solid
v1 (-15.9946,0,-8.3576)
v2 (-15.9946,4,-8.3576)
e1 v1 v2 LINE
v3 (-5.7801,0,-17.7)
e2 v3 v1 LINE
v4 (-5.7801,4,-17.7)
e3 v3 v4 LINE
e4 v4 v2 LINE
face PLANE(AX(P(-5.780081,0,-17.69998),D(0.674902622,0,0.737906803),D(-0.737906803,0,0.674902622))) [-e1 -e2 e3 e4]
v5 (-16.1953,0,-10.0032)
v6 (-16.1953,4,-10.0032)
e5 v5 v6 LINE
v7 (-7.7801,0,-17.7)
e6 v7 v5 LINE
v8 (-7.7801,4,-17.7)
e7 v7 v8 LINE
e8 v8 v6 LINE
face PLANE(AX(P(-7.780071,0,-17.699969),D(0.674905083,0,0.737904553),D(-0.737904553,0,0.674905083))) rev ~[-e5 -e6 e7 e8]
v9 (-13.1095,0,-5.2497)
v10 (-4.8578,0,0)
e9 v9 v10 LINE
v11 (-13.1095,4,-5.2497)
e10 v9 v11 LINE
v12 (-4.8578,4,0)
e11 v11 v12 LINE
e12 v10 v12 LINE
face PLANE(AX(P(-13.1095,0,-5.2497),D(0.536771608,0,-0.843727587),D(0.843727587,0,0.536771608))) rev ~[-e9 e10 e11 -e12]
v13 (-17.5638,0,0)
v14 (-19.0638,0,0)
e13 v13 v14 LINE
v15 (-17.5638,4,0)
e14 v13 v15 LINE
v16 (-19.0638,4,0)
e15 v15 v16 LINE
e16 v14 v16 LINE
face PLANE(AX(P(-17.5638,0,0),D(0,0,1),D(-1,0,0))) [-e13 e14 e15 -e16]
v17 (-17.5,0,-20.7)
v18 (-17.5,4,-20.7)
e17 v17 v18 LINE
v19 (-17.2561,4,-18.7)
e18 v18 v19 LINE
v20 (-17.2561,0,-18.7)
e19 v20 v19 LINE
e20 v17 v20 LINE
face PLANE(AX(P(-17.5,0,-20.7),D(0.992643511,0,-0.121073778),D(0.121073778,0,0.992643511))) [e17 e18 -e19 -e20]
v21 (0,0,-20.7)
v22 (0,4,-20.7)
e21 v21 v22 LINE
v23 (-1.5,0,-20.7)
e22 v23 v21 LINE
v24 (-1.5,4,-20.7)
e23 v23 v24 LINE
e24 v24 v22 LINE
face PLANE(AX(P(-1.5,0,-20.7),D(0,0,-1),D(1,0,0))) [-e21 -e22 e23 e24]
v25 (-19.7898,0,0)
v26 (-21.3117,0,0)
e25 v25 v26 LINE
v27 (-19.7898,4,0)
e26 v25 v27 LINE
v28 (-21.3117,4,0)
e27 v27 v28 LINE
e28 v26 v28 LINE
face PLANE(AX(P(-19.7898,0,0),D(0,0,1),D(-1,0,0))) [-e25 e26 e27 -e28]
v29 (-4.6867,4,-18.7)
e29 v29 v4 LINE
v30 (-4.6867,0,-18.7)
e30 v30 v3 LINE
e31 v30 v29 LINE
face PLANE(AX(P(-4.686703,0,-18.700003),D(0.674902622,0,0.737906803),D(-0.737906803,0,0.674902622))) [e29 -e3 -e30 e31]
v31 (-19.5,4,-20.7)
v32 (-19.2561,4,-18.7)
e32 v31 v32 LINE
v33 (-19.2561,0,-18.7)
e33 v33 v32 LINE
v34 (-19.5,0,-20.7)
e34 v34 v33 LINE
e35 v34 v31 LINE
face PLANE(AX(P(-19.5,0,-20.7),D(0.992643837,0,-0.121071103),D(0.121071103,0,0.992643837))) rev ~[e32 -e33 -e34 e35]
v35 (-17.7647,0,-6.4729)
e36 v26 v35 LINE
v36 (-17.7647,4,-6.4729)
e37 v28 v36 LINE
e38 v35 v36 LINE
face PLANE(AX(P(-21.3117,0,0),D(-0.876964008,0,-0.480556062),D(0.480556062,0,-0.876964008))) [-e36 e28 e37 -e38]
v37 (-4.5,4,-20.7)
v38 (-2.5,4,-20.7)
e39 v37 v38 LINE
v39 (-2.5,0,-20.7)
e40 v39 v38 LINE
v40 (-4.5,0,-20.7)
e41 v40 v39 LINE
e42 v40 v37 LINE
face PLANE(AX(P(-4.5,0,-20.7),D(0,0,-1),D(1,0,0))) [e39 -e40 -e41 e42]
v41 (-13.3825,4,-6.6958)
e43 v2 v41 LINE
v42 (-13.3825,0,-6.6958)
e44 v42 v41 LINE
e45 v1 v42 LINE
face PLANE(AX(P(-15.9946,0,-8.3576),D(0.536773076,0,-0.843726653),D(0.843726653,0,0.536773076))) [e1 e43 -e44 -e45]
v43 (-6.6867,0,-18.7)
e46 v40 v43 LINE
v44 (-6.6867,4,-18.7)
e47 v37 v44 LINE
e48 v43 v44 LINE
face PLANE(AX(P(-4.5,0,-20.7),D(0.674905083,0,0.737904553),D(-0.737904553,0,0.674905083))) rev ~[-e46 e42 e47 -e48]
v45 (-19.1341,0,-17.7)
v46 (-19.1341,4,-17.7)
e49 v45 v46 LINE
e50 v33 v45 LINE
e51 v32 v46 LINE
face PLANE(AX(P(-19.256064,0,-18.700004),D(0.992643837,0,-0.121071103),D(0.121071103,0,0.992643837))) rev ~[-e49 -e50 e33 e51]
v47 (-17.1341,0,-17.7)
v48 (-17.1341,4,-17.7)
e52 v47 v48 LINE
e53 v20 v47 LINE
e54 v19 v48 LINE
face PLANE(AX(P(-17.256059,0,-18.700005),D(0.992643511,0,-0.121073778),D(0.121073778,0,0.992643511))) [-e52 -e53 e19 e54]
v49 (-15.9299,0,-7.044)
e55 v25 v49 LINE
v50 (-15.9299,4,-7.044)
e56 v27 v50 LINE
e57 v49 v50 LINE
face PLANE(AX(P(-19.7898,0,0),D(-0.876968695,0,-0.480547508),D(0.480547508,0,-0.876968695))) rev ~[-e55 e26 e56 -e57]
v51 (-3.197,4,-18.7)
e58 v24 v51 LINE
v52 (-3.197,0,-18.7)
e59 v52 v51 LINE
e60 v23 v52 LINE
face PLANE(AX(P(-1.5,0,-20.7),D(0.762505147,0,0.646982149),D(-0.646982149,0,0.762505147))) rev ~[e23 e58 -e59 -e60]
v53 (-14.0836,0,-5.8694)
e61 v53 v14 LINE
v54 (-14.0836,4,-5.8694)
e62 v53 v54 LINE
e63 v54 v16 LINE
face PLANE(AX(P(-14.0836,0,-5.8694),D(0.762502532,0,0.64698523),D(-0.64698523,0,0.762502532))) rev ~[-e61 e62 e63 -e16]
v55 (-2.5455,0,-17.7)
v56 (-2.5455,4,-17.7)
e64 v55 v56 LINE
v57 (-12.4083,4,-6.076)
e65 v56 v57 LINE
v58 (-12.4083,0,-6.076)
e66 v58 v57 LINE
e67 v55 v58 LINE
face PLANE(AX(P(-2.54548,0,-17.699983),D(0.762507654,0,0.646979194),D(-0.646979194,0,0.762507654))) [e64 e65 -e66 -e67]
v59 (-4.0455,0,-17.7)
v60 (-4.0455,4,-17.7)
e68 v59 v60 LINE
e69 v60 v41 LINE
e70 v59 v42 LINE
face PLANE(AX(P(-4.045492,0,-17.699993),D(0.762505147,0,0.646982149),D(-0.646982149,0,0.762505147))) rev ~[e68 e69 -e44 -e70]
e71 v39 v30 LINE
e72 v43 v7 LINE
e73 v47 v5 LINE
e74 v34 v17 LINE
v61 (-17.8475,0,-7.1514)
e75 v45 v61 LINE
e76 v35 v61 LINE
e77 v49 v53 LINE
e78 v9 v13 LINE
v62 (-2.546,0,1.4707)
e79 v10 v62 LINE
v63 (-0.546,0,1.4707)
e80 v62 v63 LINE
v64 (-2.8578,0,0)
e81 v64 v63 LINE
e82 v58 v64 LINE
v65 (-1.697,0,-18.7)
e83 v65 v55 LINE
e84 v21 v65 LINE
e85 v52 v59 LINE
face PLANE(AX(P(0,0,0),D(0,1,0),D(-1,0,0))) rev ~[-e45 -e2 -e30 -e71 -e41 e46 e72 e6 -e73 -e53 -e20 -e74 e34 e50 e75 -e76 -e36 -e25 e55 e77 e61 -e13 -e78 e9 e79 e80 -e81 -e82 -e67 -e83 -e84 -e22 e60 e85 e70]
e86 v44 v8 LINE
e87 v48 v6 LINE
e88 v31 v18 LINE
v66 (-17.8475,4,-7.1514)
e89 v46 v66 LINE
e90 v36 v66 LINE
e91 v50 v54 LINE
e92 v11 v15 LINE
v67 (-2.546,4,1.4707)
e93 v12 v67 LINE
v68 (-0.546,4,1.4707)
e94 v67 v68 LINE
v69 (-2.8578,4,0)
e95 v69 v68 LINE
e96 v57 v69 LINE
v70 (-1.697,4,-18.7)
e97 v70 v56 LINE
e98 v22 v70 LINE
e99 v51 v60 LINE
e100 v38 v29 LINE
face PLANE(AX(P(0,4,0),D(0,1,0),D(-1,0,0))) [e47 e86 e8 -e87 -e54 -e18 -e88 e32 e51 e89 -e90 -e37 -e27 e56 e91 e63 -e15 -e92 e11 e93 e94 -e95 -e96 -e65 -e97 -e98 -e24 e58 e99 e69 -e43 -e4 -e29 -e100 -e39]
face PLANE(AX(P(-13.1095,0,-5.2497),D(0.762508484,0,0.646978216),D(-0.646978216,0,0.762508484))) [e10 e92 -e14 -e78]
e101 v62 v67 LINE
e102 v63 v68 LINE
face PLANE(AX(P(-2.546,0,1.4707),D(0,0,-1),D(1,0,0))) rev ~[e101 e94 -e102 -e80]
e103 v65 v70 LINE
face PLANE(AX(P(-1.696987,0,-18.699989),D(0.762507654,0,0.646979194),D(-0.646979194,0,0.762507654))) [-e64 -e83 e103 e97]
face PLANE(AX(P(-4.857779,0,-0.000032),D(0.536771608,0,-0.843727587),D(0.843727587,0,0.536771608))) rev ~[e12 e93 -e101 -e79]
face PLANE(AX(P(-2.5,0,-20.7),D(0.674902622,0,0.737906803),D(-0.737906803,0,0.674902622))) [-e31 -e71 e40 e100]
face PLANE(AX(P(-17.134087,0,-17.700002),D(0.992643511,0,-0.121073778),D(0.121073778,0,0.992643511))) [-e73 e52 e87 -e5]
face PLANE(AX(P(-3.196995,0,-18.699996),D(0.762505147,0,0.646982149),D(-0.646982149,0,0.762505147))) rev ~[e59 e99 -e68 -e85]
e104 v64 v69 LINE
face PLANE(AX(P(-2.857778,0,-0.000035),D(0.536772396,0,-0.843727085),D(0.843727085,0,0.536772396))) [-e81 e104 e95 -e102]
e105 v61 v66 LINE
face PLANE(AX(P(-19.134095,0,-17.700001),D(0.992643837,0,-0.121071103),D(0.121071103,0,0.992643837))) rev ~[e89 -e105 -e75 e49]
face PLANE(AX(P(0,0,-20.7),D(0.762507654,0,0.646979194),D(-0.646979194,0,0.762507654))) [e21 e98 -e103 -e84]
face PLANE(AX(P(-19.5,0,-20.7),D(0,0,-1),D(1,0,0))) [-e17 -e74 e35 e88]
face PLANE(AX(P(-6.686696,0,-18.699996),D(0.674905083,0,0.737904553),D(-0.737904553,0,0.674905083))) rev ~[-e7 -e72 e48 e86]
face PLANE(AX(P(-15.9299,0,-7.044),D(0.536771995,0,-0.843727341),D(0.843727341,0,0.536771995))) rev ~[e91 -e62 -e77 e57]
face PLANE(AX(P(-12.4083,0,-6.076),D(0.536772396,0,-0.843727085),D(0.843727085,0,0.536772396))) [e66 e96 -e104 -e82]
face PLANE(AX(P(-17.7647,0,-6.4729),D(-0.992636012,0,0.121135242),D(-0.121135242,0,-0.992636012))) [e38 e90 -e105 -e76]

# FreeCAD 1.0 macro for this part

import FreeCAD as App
import Part
import Sketcher

V = App.Vector
Q = App.Units.Quantity

doc = App.newDocument("Part")
body = doc.addObject("PartDesign::Body", "Body")

# Sketch on XZ plane
sketch1 = body.newObject("Sketcher::SketchObject", "Sketch")
sketch1.AttachmentSupport = (doc.getObject("XZ_Plane"), [""])
sketch1.MapMode = "FlatFace"
sketch1.addGeometry([
    Part.LineSegment(V(-17.8, -6.5, 0), V(-21.3, 0, 0)),  # 0
    Part.LineSegment(V(-21.3, 0, 0), V(-19.8, 0, 0)),  # 1
    Part.LineSegment(V(-19.8, 0, 0), V(-15.9, -7, 0)),  # 2
    Part.LineSegment(V(-15.9, -7, 0), V(-14.1, -5.9, 0)),  # 3
    Part.LineSegment(V(-14.1, -5.9, 0), V(-19.1, 0, 0)),  # 4
    Part.LineSegment(V(-19.1, 0, 0), V(-17.6, 0, 0)),  # 5
    Part.LineSegment(V(-17.6, 0, 0), V(-13.1, -5.2, 0)),  # 6
    Part.LineSegment(V(-13.1, -5.2, 0), V(-2.5, 1.5, 0)),  # 7
    Part.LineSegment(V(-2.5, 1.5, 0), V(-0.5, 1.5, 0)),  # 8
    Part.LineSegment(V(-0.5, 1.5, 0), V(-12.4, -6.1, 0)),  # 9
    Part.LineSegment(V(-12.4, -6.1, 0), V(0, -20.7, 0)),  # 10
    Part.LineSegment(V(0, -20.7, 0), V(-1.5, -20.7, 0)),  # 11
    Part.LineSegment(V(-1.5, -20.7, 0), V(-13.4, -6.7, 0)),  # 12
    Part.LineSegment(V(-13.4, -6.7, 0), V(-16, -8.4, 0)),  # 13
    Part.LineSegment(V(-16, -8.4, 0), V(-2.5, -20.7, 0)),  # 14
    Part.LineSegment(V(-2.5, -20.7, 0), V(-4.5, -20.7, 0)),  # 15
    Part.LineSegment(V(-4.5, -20.7, 0), V(-16.2, -10, 0)),  # 16
    Part.LineSegment(V(-16.2, -10, 0), V(-17.5, -20.7, 0)),  # 17
    Part.LineSegment(V(-17.5, -20.7, 0), V(-19.5, -20.7, 0)),  # 18
    Part.LineSegment(V(-19.5, -20.7, 0), V(-17.8, -7.2, 0)),  # 19
    Part.LineSegment(V(-17.8, -7.2, 0), V(-17.8, -6.5, 0)),  # 20
], False)
sketch1.addConstraint([
    Sketcher.Constraint("Coincident", 0, 2, 1, 1),
    Sketcher.Constraint("Coincident", 1, 2, 2, 1),
    Sketcher.Constraint("Coincident", 2, 2, 3, 1),
    Sketcher.Constraint("Coincident", 3, 2, 4, 1),
    Sketcher.Constraint("Coincident", 4, 2, 5, 1),
    Sketcher.Constraint("Coincident", 5, 2, 6, 1),
    Sketcher.Constraint("Coincident", 6, 2, 7, 1),
    Sketcher.Constraint("Coincident", 7, 2, 8, 1),
    Sketcher.Constraint("Coincident", 8, 2, 9, 1),
    Sketcher.Constraint("Coincident", 9, 2, 10, 1),
    Sketcher.Constraint("Coincident", 10, 2, 11, 1),
    Sketcher.Constraint("Coincident", 11, 2, 12, 1),
    Sketcher.Constraint("Coincident", 12, 2, 13, 1),
    Sketcher.Constraint("Coincident", 13, 2, 14, 1),
    Sketcher.Constraint("Coincident", 14, 2, 15, 1),
    Sketcher.Constraint("Coincident", 15, 2, 16, 1),
    Sketcher.Constraint("Coincident", 16, 2, 17, 1),
    Sketcher.Constraint("Coincident", 17, 2, 18, 1),
    Sketcher.Constraint("Coincident", 18, 2, 19, 1),
    Sketcher.Constraint("Coincident", 19, 2, 20, 1),
    Sketcher.Constraint("Coincident", 20, 2, 0, 1),
    Sketcher.Constraint("Horizontal", 1),
    Sketcher.Constraint("Horizontal", 5),
    Sketcher.Constraint("Horizontal", 8),
    Sketcher.Constraint("Horizontal", 11),
    Sketcher.Constraint("Horizontal", 15),
    Sketcher.Constraint("Horizontal", 18),
    Sketcher.Constraint("PointOnObject", 0, 2, -1),
    Sketcher.Constraint("PointOnObject", 4, 2, -1),
    Sketcher.Constraint("PointOnObject", 10, 2, -2),
    Sketcher.Constraint("Parallel", 0, 2),
    Sketcher.Constraint("Parallel", 4, 6),
    Sketcher.Constraint("Parallel", 3, 7),
    Sketcher.Constraint("Parallel", 7, 9),
    Sketcher.Constraint("Parallel", 6, 10),
    Sketcher.Constraint("Parallel", 10, 12),
    Sketcher.Constraint("Parallel", 9, 13),
    Sketcher.Constraint("Parallel", 14, 16),
    Sketcher.Constraint("Parallel", 17, 19),
    Sketcher.Constraint("Parallel", 19, 20),
    Sketcher.Constraint("Horizontal", 11, 2, 14, 2),
    Sketcher.Constraint("Horizontal", 15, 2, 17, 2),
    Sketcher.Constraint("Equal", 5, 11),
    Sketcher.Constraint("Equal", 8, 15),
    Sketcher.Constraint("Equal", 15, 18),
    Sketcher.Constraint("DistanceX", 8, 1, 8, 2, 2.0),
    Sketcher.Constraint("DistanceX", 14, 2, 11, 2, 1.0),
    Sketcher.Constraint("DistanceX", 5, 1, 5, 2, 1.5),
    Sketcher.Constraint("DistanceX", 17, 2, 15, 2, 13.0),
    Sketcher.Constraint("DistanceY", 10, 2, -1, 1, 20.7),
    Sketcher.Constraint("Angle", 2, Q("-61.2788 deg")),
    Sketcher.Constraint("Distance", 7, 12.52),
    Sketcher.Constraint("DistanceX", 1, 1, 1, 2, 1.522),
    Sketcher.Constraint("DistanceX", 2, 2, -1, 1, 15.93),
    Sketcher.Constraint("DistanceY", 3, 2, 7, 2, 7.34),
    Sketcher.Constraint("DistanceX", 20, 2, 13, 2, 1.77),
    Sketcher.Constraint("Distance", 0, 7.381),
    Sketcher.Constraint("Distance", 12, 18.366),
    Sketcher.Constraint("Distance", 13, 3.096),
    Sketcher.Constraint("Distance", 17, 10.776),
    Sketcher.Constraint("Distance", 19, 13.649),
    Sketcher.Constraint("DistanceY", 2, 2, -1, 1, 7.044),
    Sketcher.Constraint("DistanceX", 7, 2, -1, 1, 2.546),
])
pad1 = body.newObject("PartDesign::Pad", "Pad")
pad1.Profile = sketch1
pad1.Length = 4
pad1.Reversed = True

doc.recompute()
